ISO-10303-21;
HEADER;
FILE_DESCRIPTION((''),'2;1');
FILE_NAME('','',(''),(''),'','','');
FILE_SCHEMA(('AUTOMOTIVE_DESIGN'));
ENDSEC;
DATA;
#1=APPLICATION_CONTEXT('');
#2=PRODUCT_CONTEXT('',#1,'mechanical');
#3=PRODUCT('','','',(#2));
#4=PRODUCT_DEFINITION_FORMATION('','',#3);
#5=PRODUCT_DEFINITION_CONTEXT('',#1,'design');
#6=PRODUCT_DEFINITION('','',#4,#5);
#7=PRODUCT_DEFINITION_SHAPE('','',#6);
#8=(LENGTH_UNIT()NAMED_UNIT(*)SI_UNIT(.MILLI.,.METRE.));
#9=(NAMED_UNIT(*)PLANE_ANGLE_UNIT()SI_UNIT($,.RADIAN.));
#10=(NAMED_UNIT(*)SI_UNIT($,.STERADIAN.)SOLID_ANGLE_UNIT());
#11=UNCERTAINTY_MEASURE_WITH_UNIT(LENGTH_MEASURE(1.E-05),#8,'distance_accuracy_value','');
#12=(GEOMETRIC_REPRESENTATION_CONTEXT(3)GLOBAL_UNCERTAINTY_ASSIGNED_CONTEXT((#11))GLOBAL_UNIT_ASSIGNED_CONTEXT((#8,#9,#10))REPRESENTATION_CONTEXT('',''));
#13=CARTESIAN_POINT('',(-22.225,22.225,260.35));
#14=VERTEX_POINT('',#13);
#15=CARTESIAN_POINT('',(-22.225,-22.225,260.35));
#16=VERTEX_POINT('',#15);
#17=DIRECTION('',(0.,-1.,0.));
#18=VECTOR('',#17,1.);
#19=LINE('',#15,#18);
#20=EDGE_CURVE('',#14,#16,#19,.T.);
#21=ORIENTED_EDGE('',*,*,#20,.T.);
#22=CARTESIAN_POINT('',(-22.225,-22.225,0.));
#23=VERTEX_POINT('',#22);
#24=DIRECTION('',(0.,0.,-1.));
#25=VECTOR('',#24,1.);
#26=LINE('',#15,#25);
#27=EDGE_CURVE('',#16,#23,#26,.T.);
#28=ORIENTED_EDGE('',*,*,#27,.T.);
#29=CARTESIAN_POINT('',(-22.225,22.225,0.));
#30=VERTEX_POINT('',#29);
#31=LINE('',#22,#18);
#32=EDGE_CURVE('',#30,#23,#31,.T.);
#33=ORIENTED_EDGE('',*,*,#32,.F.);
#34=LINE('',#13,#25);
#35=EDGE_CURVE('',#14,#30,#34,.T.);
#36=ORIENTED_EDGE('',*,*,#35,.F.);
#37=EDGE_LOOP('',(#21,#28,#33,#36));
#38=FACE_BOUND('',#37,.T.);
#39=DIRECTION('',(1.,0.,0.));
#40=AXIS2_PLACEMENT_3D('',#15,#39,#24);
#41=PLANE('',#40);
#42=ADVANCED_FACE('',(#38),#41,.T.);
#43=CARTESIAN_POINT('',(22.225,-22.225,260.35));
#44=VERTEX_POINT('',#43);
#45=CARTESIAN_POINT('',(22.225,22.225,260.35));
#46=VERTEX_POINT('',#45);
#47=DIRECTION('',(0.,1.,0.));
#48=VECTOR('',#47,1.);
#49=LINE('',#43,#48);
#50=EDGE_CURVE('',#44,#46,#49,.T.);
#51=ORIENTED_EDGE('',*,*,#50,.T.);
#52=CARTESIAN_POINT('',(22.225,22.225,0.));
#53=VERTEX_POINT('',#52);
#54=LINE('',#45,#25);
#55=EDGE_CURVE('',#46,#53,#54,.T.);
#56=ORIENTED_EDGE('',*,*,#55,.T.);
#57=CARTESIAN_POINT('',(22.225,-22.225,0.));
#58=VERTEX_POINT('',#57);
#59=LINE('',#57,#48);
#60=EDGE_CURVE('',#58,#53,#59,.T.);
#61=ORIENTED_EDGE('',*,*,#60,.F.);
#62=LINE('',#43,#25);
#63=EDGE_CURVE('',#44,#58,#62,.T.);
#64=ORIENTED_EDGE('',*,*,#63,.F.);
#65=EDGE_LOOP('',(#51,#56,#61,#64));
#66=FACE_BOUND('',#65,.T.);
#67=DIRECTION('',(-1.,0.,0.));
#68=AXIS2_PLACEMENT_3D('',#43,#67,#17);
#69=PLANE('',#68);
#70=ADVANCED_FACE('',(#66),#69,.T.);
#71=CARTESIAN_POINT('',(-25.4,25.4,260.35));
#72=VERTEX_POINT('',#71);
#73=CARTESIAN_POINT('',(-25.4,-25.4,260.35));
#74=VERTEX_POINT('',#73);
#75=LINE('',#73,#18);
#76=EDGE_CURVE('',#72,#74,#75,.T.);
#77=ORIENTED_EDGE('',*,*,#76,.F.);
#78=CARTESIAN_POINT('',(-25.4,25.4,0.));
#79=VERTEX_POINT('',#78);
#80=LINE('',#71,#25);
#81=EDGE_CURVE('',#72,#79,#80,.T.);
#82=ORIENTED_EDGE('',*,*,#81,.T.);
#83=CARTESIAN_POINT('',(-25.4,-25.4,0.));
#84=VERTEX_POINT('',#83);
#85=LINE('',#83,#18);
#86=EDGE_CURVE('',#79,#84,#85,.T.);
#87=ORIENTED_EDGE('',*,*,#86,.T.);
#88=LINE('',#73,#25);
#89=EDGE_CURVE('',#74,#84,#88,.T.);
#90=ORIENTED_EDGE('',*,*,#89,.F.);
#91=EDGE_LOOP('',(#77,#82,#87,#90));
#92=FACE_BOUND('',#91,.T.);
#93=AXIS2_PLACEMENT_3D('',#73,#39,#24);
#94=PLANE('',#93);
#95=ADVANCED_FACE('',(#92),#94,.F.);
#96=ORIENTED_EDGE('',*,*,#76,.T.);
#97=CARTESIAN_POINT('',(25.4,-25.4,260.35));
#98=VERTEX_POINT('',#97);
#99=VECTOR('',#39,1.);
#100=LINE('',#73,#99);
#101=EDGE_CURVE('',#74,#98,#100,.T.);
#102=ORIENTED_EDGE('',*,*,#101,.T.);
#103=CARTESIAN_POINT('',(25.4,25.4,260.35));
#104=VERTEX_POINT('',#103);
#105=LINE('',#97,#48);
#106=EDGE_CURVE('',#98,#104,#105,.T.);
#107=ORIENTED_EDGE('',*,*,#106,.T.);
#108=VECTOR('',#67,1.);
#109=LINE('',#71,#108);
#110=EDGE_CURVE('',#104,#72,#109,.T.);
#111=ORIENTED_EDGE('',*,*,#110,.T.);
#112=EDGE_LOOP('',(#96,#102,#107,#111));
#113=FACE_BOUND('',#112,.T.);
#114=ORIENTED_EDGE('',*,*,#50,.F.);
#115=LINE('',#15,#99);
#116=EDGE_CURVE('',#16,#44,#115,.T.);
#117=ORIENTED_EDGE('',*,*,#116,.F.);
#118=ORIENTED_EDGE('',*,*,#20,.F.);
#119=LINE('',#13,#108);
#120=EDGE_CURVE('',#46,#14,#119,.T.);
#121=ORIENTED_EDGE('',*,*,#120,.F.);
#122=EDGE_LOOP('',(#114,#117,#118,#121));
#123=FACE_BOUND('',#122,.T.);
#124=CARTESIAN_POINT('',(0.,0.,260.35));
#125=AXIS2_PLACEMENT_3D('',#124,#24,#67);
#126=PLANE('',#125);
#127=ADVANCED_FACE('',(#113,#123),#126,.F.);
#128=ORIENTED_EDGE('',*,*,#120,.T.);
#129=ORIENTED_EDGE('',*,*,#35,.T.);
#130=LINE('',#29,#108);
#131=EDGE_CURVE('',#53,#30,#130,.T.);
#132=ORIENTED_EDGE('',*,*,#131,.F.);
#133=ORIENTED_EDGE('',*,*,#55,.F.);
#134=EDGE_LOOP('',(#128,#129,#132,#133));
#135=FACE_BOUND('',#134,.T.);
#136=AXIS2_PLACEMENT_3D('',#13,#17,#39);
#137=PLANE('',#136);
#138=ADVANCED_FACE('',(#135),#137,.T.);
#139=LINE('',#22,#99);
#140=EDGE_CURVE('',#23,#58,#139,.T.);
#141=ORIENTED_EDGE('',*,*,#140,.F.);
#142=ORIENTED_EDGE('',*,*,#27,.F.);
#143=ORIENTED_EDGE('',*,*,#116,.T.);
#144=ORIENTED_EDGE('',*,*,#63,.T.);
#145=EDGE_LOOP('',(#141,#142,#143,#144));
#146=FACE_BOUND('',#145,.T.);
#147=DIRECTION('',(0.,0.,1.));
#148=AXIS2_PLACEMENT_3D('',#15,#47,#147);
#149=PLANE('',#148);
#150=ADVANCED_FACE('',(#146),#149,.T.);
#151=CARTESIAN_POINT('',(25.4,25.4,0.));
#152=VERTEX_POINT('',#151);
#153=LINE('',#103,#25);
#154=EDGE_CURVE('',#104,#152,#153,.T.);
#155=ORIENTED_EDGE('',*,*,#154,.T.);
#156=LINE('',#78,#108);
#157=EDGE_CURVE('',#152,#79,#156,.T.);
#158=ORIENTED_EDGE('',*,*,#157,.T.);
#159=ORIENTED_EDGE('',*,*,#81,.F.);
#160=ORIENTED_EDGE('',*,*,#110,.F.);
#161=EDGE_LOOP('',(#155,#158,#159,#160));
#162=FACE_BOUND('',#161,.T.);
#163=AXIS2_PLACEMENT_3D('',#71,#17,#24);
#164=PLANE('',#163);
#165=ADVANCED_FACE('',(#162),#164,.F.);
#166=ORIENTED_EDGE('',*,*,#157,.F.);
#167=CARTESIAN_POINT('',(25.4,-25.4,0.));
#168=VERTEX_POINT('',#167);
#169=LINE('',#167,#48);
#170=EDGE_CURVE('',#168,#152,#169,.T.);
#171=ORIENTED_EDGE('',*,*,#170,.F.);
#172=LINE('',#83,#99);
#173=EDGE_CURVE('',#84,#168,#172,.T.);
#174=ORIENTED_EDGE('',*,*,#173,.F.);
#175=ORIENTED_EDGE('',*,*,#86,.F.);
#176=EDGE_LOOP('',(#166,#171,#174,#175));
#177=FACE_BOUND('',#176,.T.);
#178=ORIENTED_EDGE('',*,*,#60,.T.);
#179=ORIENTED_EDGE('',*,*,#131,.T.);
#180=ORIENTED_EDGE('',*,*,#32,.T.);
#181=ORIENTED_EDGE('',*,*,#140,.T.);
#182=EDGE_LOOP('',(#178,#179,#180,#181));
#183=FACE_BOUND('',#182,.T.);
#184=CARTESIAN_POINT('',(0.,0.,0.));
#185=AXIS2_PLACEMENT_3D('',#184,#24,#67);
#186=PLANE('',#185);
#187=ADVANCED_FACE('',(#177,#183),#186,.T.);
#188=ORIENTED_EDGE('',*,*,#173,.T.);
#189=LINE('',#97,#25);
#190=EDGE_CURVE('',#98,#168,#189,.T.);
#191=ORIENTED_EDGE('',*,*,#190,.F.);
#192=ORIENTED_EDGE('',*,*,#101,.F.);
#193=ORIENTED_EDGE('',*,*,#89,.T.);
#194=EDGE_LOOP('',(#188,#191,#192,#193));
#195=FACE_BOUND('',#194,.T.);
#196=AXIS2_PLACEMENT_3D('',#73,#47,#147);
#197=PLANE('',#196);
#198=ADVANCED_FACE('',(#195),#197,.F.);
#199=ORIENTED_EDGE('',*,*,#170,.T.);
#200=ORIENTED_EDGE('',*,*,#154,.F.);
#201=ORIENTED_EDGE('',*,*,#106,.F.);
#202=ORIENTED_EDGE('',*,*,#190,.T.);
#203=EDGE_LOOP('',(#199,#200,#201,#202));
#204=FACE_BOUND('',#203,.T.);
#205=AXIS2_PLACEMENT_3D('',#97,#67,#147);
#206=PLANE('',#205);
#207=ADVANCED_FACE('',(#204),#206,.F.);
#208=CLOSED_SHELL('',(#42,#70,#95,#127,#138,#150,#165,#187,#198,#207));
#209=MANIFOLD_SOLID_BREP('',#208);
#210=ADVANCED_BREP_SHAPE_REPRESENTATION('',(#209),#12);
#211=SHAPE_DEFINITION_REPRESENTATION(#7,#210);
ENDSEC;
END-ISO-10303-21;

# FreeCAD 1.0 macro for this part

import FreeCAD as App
import Part
import Sketcher
Q = App.Units.Quantity

doc = App.newDocument("Part")
params = doc.addObject("Spreadsheet::Sheet", "Params")
for row, (alias, value) in enumerate([
    ("sketch1_width", "2 in"),
    ("sketch1_width2", "1.75 in"),
    ("pad1_length", "10.25 in"),
], start=1):
    params.set(f"A{row}", alias)
    params.set(f"B{row}", "=" + value)
    params.setAlias(f"B{row}", alias)

body = doc.addObject("PartDesign::Body", "Body")

# Sketch on XY plane
sketch1 = doc.addObject("Sketcher::SketchObject", "Sketch")
body.addObject(sketch1)
sketch1.AttachmentSupport = (doc.XY_Plane, [""])
sketch1.MapMode = "FlatFace"
sketch1.addGeometry([
    Part.LineSegment(App.Vector(-25, 25, 0), App.Vector(-25, -25, 0)),  # 0
    Part.LineSegment(App.Vector(-25, -25, 0), App.Vector(25, -25, 0)),  # 1
    Part.LineSegment(App.Vector(25, -25, 0), App.Vector(25, 25, 0)),  # 2
    Part.LineSegment(App.Vector(25, 25, 0), App.Vector(-25, 25, 0)),  # 3
    Part.LineSegment(App.Vector(22, -22, 0), App.Vector(-22, -22, 0)),  # 4
    Part.LineSegment(App.Vector(-22, -22, 0), App.Vector(-22, 22, 0)),  # 5
    Part.LineSegment(App.Vector(-22, 22, 0), App.Vector(22, 22, 0)),  # 6
    Part.LineSegment(App.Vector(22, 22, 0), App.Vector(22, -22, 0)),  # 7
], False)
sketch1.addConstraint([
    Sketcher.Constraint("Coincident", 0, 2, 1, 1),
    Sketcher.Constraint("Coincident", 1, 2, 2, 1),
    Sketcher.Constraint("Coincident", 2, 2, 3, 1),
    Sketcher.Constraint("Coincident", 3, 2, 0, 1),
    Sketcher.Constraint("Coincident", 4, 2, 5, 1),
    Sketcher.Constraint("Coincident", 5, 2, 6, 1),
    Sketcher.Constraint("Coincident", 6, 2, 7, 1),
    Sketcher.Constraint("Coincident", 7, 2, 4, 1),
    Sketcher.Constraint("Vertical", 0),
    Sketcher.Constraint("Horizontal", 1),
    Sketcher.Constraint("Vertical", 2),
    Sketcher.Constraint("Horizontal", 3),
    Sketcher.Constraint("Horizontal", 4),
    Sketcher.Constraint("Vertical", 5),
    Sketcher.Constraint("Horizontal", 6),
    Sketcher.Constraint("Vertical", 7),
    Sketcher.Constraint("Symmetric", 0, 2, 2, 2, -1, 1),
    Sketcher.Constraint("Symmetric", 4, 2, 6, 2, -1, 1),
    Sketcher.Constraint("Equal", 3, 0),
    Sketcher.Constraint("Equal", 6, 5),
    Sketcher.Constraint("DistanceX", 1, 1, 1, 2, Q("2 in")),
    Sketcher.Constraint("DistanceX", 4, 2, 4, 1, Q("1.75 in")),
])
sketch1.setExpression("Constraints[20]", "Params.sketch1_width")
sketch1.setExpression("Constraints[21]", "Params.sketch1_width2")
pad1 = doc.addObject("PartDesign::Pad", "Pad")
body.addObject(pad1)
pad1.Profile = sketch1
pad1.setExpression("Length", "Params.pad1_length")

doc.recompute()
